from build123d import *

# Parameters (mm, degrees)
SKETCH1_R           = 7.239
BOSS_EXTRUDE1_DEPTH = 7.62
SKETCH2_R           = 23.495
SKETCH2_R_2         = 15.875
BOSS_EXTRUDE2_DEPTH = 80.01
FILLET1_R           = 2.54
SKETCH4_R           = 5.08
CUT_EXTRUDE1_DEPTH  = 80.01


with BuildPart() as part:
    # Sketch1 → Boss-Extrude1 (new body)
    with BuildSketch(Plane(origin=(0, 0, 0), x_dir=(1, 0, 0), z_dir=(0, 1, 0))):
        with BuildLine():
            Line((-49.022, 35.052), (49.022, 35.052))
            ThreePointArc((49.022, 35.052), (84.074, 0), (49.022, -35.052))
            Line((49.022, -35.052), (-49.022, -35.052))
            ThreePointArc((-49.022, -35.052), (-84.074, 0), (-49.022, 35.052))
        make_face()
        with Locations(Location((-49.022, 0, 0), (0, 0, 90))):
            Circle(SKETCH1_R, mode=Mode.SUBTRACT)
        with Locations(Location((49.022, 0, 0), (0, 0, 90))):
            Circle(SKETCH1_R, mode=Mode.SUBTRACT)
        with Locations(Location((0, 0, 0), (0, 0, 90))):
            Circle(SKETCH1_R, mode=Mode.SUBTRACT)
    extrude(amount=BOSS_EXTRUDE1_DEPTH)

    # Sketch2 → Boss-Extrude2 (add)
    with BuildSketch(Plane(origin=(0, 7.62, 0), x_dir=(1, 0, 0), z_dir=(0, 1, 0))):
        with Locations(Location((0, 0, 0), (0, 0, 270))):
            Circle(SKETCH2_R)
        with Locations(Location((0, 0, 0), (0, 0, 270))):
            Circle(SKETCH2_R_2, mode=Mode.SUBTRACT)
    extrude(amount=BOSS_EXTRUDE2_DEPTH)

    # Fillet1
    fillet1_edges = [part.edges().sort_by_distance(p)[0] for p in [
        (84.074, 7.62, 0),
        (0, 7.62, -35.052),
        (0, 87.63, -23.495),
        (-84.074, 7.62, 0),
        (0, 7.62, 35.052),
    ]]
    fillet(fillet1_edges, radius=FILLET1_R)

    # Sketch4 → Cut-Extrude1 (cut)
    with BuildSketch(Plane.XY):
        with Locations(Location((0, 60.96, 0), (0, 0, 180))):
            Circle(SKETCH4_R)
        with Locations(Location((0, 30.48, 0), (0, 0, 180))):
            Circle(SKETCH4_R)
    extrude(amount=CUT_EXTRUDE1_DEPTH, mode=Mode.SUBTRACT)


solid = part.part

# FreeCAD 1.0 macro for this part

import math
import FreeCAD as App
import Part
import Sketcher

V = App.Vector
Q = App.Units.Quantity


def edges_at(feature, points):
    """Names of the edges that pass closest to the given points."""
    edges = feature.Shape.Edges
    near = lambda p: min(range(len(edges)), key=lambda i: edges[i].distToShape(Part.Vertex(*p))[0])
    return sorted({f"Edge{near(p) + 1}" for p in points})

doc = App.newDocument("Part")
params = doc.addObject("Spreadsheet::Sheet", "Params")
for row, (alias, value) in enumerate([
    ("sketch1_diameter", "0.57 in"),
    ("sketch1_radius", "1.38 in"),
    ("sketch1_width", "3.86 in"),
    ("pad1_length", "0.3 in"),
    ("sketch2_diameter", "1.85 in"),
    ("sketch2_diameter2", "1.25 in"),
    ("pad2_length", "3.15 in"),
    ("fillet_radius", "0.1 in"),
    ("sketch3_diameter", "0.4 in"),
    ("pocket1_length", "3.15 in"),
], start=1):
    params.set(f"A{row}", alias)
    params.set(f"B{row}", "=" + value)
    params.setAlias(f"B{row}", alias)

body = doc.addObject("PartDesign::Body", "Body")

sketch1 = doc.addObject("Sketcher::SketchObject", "Sketch")
body.addObject(sketch1)
sketch1.AttachmentSupport = (doc.XZ_Plane, [""])
sketch1.MapMode = "FlatFace"
sketch1.addGeometry([
    Part.LineSegment(V(49.022, -35.052, 0), V(-49.022, -35.052, 0)),
    Part.ArcOfCircle(Part.Circle(V(-49.022, 0, 0), V(0, 0, 1), 35.052), math.radians(90), math.radians(270)),
    Part.LineSegment(V(-49.022, 35.052, 0), V(49.022, 35.052, 0)),
    Part.ArcOfCircle(Part.Circle(V(49.022, 0, 0), V(0, 0, 1), 35.052), math.radians(-90), math.radians(90)),
    Part.Circle(V(49.022, 0, 0), V(0, 0, 1), 7.239),
    Part.Circle(V(0, 0, 0), V(0, 0, 1), 7.239),
    Part.Circle(V(-49.022, 0, 0), V(0, 0, 1), 7.239),
], False)
sketch1.addConstraint([
    Sketcher.Constraint("Tangent", 0, 2, 1, 2),
    Sketcher.Constraint("Tangent", 1, 1, 2, 1),
    Sketcher.Constraint("Tangent", 2, 2, 3, 2),
    Sketcher.Constraint("Tangent", 3, 1, 0, 1),
    Sketcher.Constraint("Horizontal", 0),
    Sketcher.Constraint("Horizontal", 2),
    Sketcher.Constraint("Coincident", 5, 3, -1, 1),
    Sketcher.Constraint("Coincident", 4, 3, 3, 3),
    Sketcher.Constraint("Coincident", 6, 3, 1, 3),
    Sketcher.Constraint("Equal", 4, 5),
    Sketcher.Constraint("Equal", 5, 6),
    Sketcher.Constraint("Symmetric", 1, 3, 3, 3, -1, 1),
    Sketcher.Constraint("Diameter", 4, Q("0.57 in")),
    Sketcher.Constraint("Radius", 1, Q("1.38 in")),
    Sketcher.Constraint("DistanceX", 0, 2, 0, 1, Q("3.86 in")),
])
sketch1.setExpression("Constraints[12]", "Params.sketch1_diameter")
sketch1.setExpression("Constraints[13]", "Params.sketch1_radius")
sketch1.setExpression("Constraints[14]", "Params.sketch1_width")
pad1 = doc.addObject("PartDesign::Pad", "Pad")
body.addObject(pad1)
pad1.Profile = sketch1
pad1.setExpression("Length", "Params.pad1_length")
pad1.Reversed = True

sketch2 = doc.addObject("Sketcher::SketchObject", "Sketch001")
body.addObject(sketch2)
sketch2.AttachmentSupport = (doc.XZ_Plane, [""])
sketch2.MapMode = "FlatFace"
sketch2.AttachmentOffset = App.Placement(V(0, 0, -0.3 * 25.4), App.Rotation())
sketch2.addGeometry([
    Part.Circle(V(0, 0, 0), V(0, 0, 1), 23.495),
    Part.Circle(V(0, 0, 0), V(0, 0, 1), 15.875),
], False)
sketch2.addConstraint([
    Sketcher.Constraint("Coincident", 0, 3, -1, 1),
    Sketcher.Constraint("Coincident", 1, 3, -1, 1),
    Sketcher.Constraint("Diameter", 0, Q("1.85 in")),
    Sketcher.Constraint("Diameter", 1, Q("1.25 in")),
])
sketch2.setExpression("Constraints[2]", "Params.sketch2_diameter")
sketch2.setExpression("Constraints[3]", "Params.sketch2_diameter2")
pad2 = doc.addObject("PartDesign::Pad", "Pad001")
body.addObject(pad2)
pad2.Profile = sketch2
pad2.setExpression("Length", "Params.pad2_length")
pad2.Reversed = True
doc.recompute()

fillet = doc.addObject("PartDesign::Fillet", "Fillet")
body.addObject(fillet)
fillet.Base = (pad2, edges_at(pad2, [
    (84.074, 7.62, 0),
    (0, 7.62, -35.052),
    (0, 87.63, -23.495),
    (-84.074, 7.62, 0),
    (0, 7.62, 35.052),
]))
fillet.setExpression("Radius", "Params.fillet_radius")

sketch3 = doc.addObject("Sketcher::SketchObject", "Sketch002")
body.addObject(sketch3)
sketch3.AttachmentSupport = (doc.XY_Plane, [""])
sketch3.MapMode = "FlatFace"
sketch3.addGeometry([
    Part.Circle(V(0, 60.96, 0), V(0, 0, 1), 5.08),
    Part.Circle(V(0, 30.48, 0), V(0, 0, 1), 5.08),
], False)
sketch3.addConstraint([
    Sketcher.Constraint("Equal", 0, 1),
    Sketcher.Constraint("PointOnObject", 0, 3, -2),
    Sketcher.Constraint("PointOnObject", 1, 3, -2),
    Sketcher.Constraint("Diameter", 0, Q("0.4 in")),
    Sketcher.Constraint("DistanceY", -1, 1, 0, 3, Q("2.4 in")),
    Sketcher.Constraint("DistanceY", -1, 1, 1, 3, Q("1.2 in")),
])
sketch3.setExpression("Constraints[3]", "Params.sketch3_diameter")
pocket1 = doc.addObject("PartDesign::Pocket", "Pocket")
body.addObject(pocket1)
pocket1.Profile = sketch3
pocket1.setExpression("Length", "Params.pocket1_length")
pocket1.Reversed = True

doc.recompute()
